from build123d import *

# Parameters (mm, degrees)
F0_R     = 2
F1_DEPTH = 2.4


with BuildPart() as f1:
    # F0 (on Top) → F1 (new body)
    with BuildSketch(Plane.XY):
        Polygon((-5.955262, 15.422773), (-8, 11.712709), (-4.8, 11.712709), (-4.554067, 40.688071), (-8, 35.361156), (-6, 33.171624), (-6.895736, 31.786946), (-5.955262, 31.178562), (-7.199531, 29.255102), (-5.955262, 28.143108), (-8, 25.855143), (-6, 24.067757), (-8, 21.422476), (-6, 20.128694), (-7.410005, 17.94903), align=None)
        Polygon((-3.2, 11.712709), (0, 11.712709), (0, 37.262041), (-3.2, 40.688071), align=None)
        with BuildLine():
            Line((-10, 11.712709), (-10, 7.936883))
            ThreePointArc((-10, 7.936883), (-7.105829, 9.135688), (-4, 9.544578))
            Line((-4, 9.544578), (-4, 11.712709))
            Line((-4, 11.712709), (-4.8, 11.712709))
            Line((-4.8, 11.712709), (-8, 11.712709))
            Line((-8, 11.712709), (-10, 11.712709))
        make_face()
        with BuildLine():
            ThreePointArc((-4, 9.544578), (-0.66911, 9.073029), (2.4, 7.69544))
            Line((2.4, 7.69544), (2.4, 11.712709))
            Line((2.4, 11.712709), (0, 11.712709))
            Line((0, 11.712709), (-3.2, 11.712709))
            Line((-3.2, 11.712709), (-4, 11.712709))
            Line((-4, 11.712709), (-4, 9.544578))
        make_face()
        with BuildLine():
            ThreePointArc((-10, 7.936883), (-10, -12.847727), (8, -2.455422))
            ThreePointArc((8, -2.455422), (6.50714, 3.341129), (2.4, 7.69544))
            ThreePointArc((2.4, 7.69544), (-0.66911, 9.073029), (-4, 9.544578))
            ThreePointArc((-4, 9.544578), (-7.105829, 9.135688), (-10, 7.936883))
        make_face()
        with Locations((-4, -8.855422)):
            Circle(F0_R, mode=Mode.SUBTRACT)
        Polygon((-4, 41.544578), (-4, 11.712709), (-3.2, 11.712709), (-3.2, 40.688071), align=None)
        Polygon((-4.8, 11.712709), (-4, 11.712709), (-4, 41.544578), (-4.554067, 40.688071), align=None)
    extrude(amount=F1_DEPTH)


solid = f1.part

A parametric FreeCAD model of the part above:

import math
import FreeCAD as App
import Part
import Sketcher
from FreeCAD import Vector
Q = App.Units.Quantity

doc = App.newDocument("Part")
body = doc.addObject("PartDesign::Body", "Body")

# Sketch on XY plane
sketch1 = doc.addObject("Sketcher::SketchObject", "Sketch")
body.addObject(sketch1)
sketch1.AttachmentSupport = (doc.XY_Plane, [""])
sketch1.MapMode = "FlatFace"
sketch1.addGeometry(Part.LineSegment(Vector(-5.955262, 15.422773, 0), Vector(-8, 11.712709, 0)), False)
sketch1.addGeometry(Part.LineSegment(Vector(-8, 11.712709, 0), Vector(-10, 11.712709, 0)), False)
sketch1.addGeometry(Part.LineSegment(Vector(-10, 11.712709, 0), Vector(-10, 7.936883, 0)), False)
sketch1.addGeometry(Part.ArcOfCircle(Part.Circle(Vector(-4, -2.455422, 0), Vector(0, 0, 1), 12), math.radians(119.999999), math.radians(360)), False)
sketch1.addGeometry(Part.ArcOfCircle(Part.Circle(Vector(-4.000002, -2.455423, 0), Vector(0, 0, 1), 12.000002), math.radians(0.000004), math.radians(57.769043)), False)
sketch1.addGeometry(Part.LineSegment(Vector(2.4, 7.69544, 0), Vector(2.4, 11.712709, 0)), False)
sketch1.addGeometry(Part.LineSegment(Vector(2.4, 11.712709, 0), Vector(0, 11.712709, 0)), False)
sketch1.addGeometry(Part.LineSegment(Vector(0, 11.712709, 0), Vector(0, 37.262041, 0)), False)
sketch1.addGeometry(Part.LineSegment(Vector(0, 37.262041, 0), Vector(-3.2, 40.688071, 0)), False)
sketch1.addGeometry(Part.LineSegment(Vector(-3.2, 40.688071, 0), Vector(-4, 41.544578, 0)), False)
sketch1.addGeometry(Part.LineSegment(Vector(-4, 41.544578, 0), Vector(-4.554067, 40.688071, 0)), False)
sketch1.addGeometry(Part.LineSegment(Vector(-4.554067, 40.688071, 0), Vector(-8, 35.361156, 0)), False)
sketch1.addGeometry(Part.LineSegment(Vector(-8, 35.361156, 0), Vector(-6, 33.171624, 0)), False)
sketch1.addGeometry(Part.LineSegment(Vector(-6, 33.171624, 0), Vector(-6.895736, 31.786946, 0)), False)
sketch1.addGeometry(Part.LineSegment(Vector(-6.895736, 31.786946, 0), Vector(-5.955262, 31.178562, 0)), False)
sketch1.addGeometry(Part.LineSegment(Vector(-5.955262, 31.178562, 0), Vector(-7.199531, 29.255102, 0)), False)
sketch1.addGeometry(Part.LineSegment(Vector(-7.199531, 29.255102, 0), Vector(-5.955262, 28.143108, 0)), False)
sketch1.addGeometry(Part.LineSegment(Vector(-5.955262, 28.143108, 0), Vector(-8, 25.855143, 0)), False)
sketch1.addGeometry(Part.LineSegment(Vector(-8, 25.855143, 0), Vector(-6, 24.067757, 0)), False)
sketch1.addGeometry(Part.LineSegment(Vector(-6, 24.067757, 0), Vector(-8, 21.422476, 0)), False)
sketch1.addGeometry(Part.LineSegment(Vector(-8, 21.422476, 0), Vector(-6, 20.128694, 0)), False)
sketch1.addGeometry(Part.LineSegment(Vector(-6, 20.128694, 0), Vector(-7.410005, 17.94903, 0)), False)
sketch1.addGeometry(Part.LineSegment(Vector(-7.410005, 17.94903, 0), Vector(-5.955262, 15.422773, 0)), False)
sketch1.addGeometry(Part.Circle(Vector(-4, -8.855422, 0), Vector(0, 0, 1), 2), False)
sketch1.addConstraint(Sketcher.Constraint("Coincident", 0, 2, 1, 1))
sketch1.addConstraint(Sketcher.Constraint("Coincident", 1, 2, 2, 1))
sketch1.addConstraint(Sketcher.Constraint("Coincident", 2, 2, 3, 1))
sketch1.addConstraint(Sketcher.Constraint("Tangent", 3, 2, 4, 1))
sketch1.addConstraint(Sketcher.Constraint("Coincident", 4, 2, 5, 1))
sketch1.addConstraint(Sketcher.Constraint("Coincident", 5, 2, 6, 1))
sketch1.addConstraint(Sketcher.Constraint("Coincident", 6, 2, 7, 1))
sketch1.addConstraint(Sketcher.Constraint("Coincident", 7, 2, 8, 1))
sketch1.addConstraint(Sketcher.Constraint("Coincident", 8, 2, 9, 1))
sketch1.addConstraint(Sketcher.Constraint("Coincident", 9, 2, 10, 1))
sketch1.addConstraint(Sketcher.Constraint("Coincident", 10, 2, 11, 1))
sketch1.addConstraint(Sketcher.Constraint("Coincident", 11, 2, 12, 1))
sketch1.addConstraint(Sketcher.Constraint("Coincident", 12, 2, 13, 1))
sketch1.addConstraint(Sketcher.Constraint("Coincident", 13, 2, 14, 1))
sketch1.addConstraint(Sketcher.Constraint("Coincident", 14, 2, 15, 1))
sketch1.addConstraint(Sketcher.Constraint("Coincident", 15, 2, 16, 1))
sketch1.addConstraint(Sketcher.Constraint("Coincident", 16, 2, 17, 1))
sketch1.addConstraint(Sketcher.Constraint("Coincident", 17, 2, 18, 1))
sketch1.addConstraint(Sketcher.Constraint("Coincident", 18, 2, 19, 1))
sketch1.addConstraint(Sketcher.Constraint("Coincident", 19, 2, 20, 1))
sketch1.addConstraint(Sketcher.Constraint("Coincident", 20, 2, 21, 1))
sketch1.addConstraint(Sketcher.Constraint("Coincident", 21, 2, 22, 1))
sketch1.addConstraint(Sketcher.Constraint("Coincident", 22, 2, 0, 1))
sketch1.addConstraint(Sketcher.Constraint("Horizontal", 1))
sketch1.addConstraint(Sketcher.Constraint("Vertical", 2))
sketch1.addConstraint(Sketcher.Constraint("Vertical", 5))
sketch1.addConstraint(Sketcher.Constraint("Horizontal", 6))
sketch1.addConstraint(Sketcher.Constraint("Vertical", 7))
sketch1.addConstraint(Sketcher.Constraint("Equal", 3, 4))
sketch1.addConstraint(Sketcher.Constraint("PointOnObject", 6, 2, -2))
sketch1.addConstraint(Sketcher.Constraint("Parallel", 8, 9))
sketch1.addConstraint(Sketcher.Constraint("Parallel", 10, 11))
sketch1.addConstraint(Sketcher.Constraint("Parallel", 11, 13))
sketch1.addConstraint(Sketcher.Constraint("Perpendicular", 13, 14))
sketch1.addConstraint(Sketcher.Constraint("Perpendicular", 14, 15))
sketch1.addConstraint(Sketcher.Constraint("Perpendicular", 16, 17))
sketch1.addConstraint(Sketcher.Constraint("Perpendicular", 17, 18))
sketch1.addConstraint(Sketcher.Constraint("Perpendicular", 15, 20))
sketch1.addConstraint(Sketcher.Constraint("Perpendicular", 20, 21))
sketch1.addConstraint(Sketcher.Constraint("Horizontal", 4, 3, 3, 2))
sketch1.addConstraint(Sketcher.Constraint("Horizontal", 1, 2, 5, 2))
sketch1.addConstraint(Sketcher.Constraint("Horizontal", 8, 2, 10, 2))
sketch1.addConstraint(Sketcher.Constraint("Vertical", 4, 3, 23, 3))
sketch1.addConstraint(Sketcher.Constraint("Vertical", 23, 3, 9, 2))
sketch1.addConstraint(Sketcher.Constraint("Vertical", 0, 2, 11, 2))
sketch1.addConstraint(Sketcher.Constraint("Vertical", 14, 2, 16, 2))
sketch1.addConstraint(Sketcher.Constraint("Vertical", 11, 2, 17, 2))
sketch1.addConstraint(Sketcher.Constraint("Vertical", 12, 2, 18, 2))
sketch1.addConstraint(Sketcher.Constraint("Vertical", 17, 2, 19, 2))
sketch1.addConstraint(Sketcher.Constraint("Vertical", 18, 2, 20, 2))
sketch1.addConstraint(Sketcher.Constraint("Vertical", 16, 2, 22, 2))
sketch1.addConstraint(Sketcher.Constraint("Diameter", 23, Q("4 mm")))
sketch1.addConstraint(Sketcher.Constraint("Radius", 3, Q("12 mm")))
sketch1.addConstraint(Sketcher.Constraint("DistanceX", 1, 2, 1, 1, Q("2 mm")))
sketch1.addConstraint(Sketcher.Constraint("DistanceX", 6, 2, 6, 1, Q("2.4 mm")))
sketch1.addConstraint(Sketcher.Constraint("DistanceX", 3, 3, -1, 1, Q("4 mm")))
sketch1.addConstraint(Sketcher.Constraint("DistanceX", 0, 2, -1, 1, Q("8 mm")))
sketch1.addConstraint(Sketcher.Constraint("DistanceX", 12, 2, -1, 1, Q("6 mm")))
sketch1.addConstraint(Sketcher.Constraint("DistanceX", 8, 2, -1, 1, Q("3.2 mm")))
sketch1.addConstraint(Sketcher.Constraint("DistanceY", 23, 3, 4, 3, Q("6.399999 mm")))
sketch1.addConstraint(Sketcher.Constraint("Distance", 14, Q("1.120099 mm")))
sketch1.addConstraint(Sketcher.Constraint("DistanceY", 5, 1, 5, 2, Q("4.017269 mm")))
sketch1.addConstraint(Sketcher.Constraint("DistanceY", 4, 2, 7, 2, Q("29.566601 mm")))
sketch1.addConstraint(Sketcher.Constraint("Distance", 9, Q("1.172009 mm")))
sketch1.addConstraint(Sketcher.Constraint("Distance", 15, Q("2.29083 mm")))
sketch1.addConstraint(Sketcher.Constraint("Distance", 19, Q("3.31625 mm")))
sketch1.addConstraint(Sketcher.Constraint("Distance", 20, Q("2.381989 mm")))
sketch1.addConstraint(Sketcher.Constraint("DistanceY", 3, 3, -1, 1, Q("2.455422 mm")))
sketch1.addConstraint(Sketcher.Constraint("DistanceY", -1, 1, 14, 2, Q("31.178562 mm")))
sketch1.addConstraint(Sketcher.Constraint("DistanceX", 15, 2, -1, 1, Q("7.199531 mm")))
sketch1.addConstraint(Sketcher.Constraint("DistanceY", -1, 1, 16, 2, Q("28.143108 mm")))
sketch1.addConstraint(Sketcher.Constraint("DistanceY", -1, 1, 21, 2, Q("17.94903 mm")))
sketch1.addConstraint(Sketcher.Constraint("DistanceY", 22, 2, 20, 2, Q("4.705921 mm")))
pad1 = doc.addObject("PartDesign::Pad", "Pad")
body.addObject(pad1)
pad1.Profile = sketch1
pad1.Length = 2.4

doc.recompute()
